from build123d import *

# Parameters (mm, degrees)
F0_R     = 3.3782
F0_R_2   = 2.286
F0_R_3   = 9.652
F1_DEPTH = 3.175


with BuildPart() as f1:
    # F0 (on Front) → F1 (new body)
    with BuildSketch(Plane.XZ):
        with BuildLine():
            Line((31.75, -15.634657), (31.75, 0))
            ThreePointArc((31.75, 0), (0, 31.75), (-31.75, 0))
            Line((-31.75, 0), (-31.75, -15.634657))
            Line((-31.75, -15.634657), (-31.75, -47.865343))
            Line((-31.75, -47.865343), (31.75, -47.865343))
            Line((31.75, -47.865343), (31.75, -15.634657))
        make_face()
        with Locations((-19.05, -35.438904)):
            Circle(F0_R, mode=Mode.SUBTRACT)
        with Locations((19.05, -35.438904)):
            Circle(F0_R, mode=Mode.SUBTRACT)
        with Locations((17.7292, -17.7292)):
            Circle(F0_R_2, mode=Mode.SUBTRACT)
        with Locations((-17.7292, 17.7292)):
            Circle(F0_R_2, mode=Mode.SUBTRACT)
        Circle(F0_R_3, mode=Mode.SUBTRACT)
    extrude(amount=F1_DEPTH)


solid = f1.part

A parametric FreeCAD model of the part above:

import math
import FreeCAD as App
import Part
import Sketcher
Q = App.Units.Quantity

doc = App.newDocument("Part")
body = doc.addObject("PartDesign::Body", "Body")

sketch1 = doc.addObject("Sketcher::SketchObject", "Sketch")
body.addObject(sketch1)
sketch1.AttachmentSupport = (doc.XZ_Plane, [""])
sketch1.MapMode = "FlatFace"
sketch1.addGeometry(Part.ArcOfCircle(Part.Circle(App.Vector(0, 0, 0), App.Vector(0, 0, 1), 31.8), math.radians(0), math.radians(180)), False)
sketch1.addGeometry(Part.LineSegment(App.Vector(-31.8, 0, 0), App.Vector(-31.8, -47.9, 0)), False)
sketch1.addGeometry(Part.LineSegment(App.Vector(-31.8, -47.9, 0), App.Vector(31.8, -47.9, 0)), False)
sketch1.addGeometry(Part.LineSegment(App.Vector(31.8, -47.9, 0), App.Vector(31.8, 0, 0)), False)
sketch1.addGeometry(Part.Circle(App.Vector(-19.1, -35.4, 0), App.Vector(0, 0, 1), 3.4), False)
sketch1.addGeometry(Part.Circle(App.Vector(19.1, -35.4, 0), App.Vector(0, 0, 1), 3.4), False)
sketch1.addGeometry(Part.Circle(App.Vector(17.7, -17.7, 0), App.Vector(0, 0, 1), 2.3), False)
sketch1.addGeometry(Part.Circle(App.Vector(0, 0, 0), App.Vector(0, 0, 1), 9.7), False)
sketch1.addGeometry(Part.Circle(App.Vector(-17.7, 17.7, 0), App.Vector(0, 0, 1), 2.3), False)
sketch1.addConstraint(Sketcher.Constraint("Tangent", 0, 2, 1, 1))
sketch1.addConstraint(Sketcher.Constraint("Coincident", 1, 2, 2, 1))
sketch1.addConstraint(Sketcher.Constraint("Coincident", 2, 2, 3, 1))
sketch1.addConstraint(Sketcher.Constraint("Tangent", 3, 2, 0, 1))
sketch1.addConstraint(Sketcher.Constraint("Vertical", 1))
sketch1.addConstraint(Sketcher.Constraint("Horizontal", 2))
sketch1.addConstraint(Sketcher.Constraint("Vertical", 3))
sketch1.addConstraint(Sketcher.Constraint("Coincident", 0, 3, -1, 1))
sketch1.addConstraint(Sketcher.Constraint("Coincident", 7, 3, -1, 1))
sketch1.addConstraint(Sketcher.Constraint("Equal", 4, 5))
sketch1.addConstraint(Sketcher.Constraint("Equal", 6, 8))
sketch1.addConstraint(Sketcher.Constraint("Symmetric", 6, 3, 8, 3, -1, 1))
sketch1.addConstraint(Sketcher.Constraint("Symmetric", 4, 3, 5, 3, -2))
sketch1.addConstraint(Sketcher.Constraint("Diameter", 6, Q("0.18 in")))
sketch1.addConstraint(Sketcher.Constraint("Diameter", 7, Q("0.76 in")))
sketch1.addConstraint(Sketcher.Constraint("Radius", 0, Q("1.25 in")))
sketch1.addConstraint(Sketcher.Constraint("Diameter", 4, Q("0.266 in")))
sketch1.addConstraint(Sketcher.Constraint("DistanceX", 1, 2, 5, 3, Q("2 in")))
sketch1.addConstraint(Sketcher.Constraint("DistanceX", -1, 1, 6, 3, Q("0.698 in")))
sketch1.addConstraint(Sketcher.Constraint("DistanceY", 6, 3, -1, 1, Q("0.698 in")))
sketch1.addConstraint(Sketcher.Constraint("DistanceY", 1, 2, 1, 1, 47.865343))
sketch1.addConstraint(Sketcher.Constraint("DistanceY", 1, 2, 4, 3, 12.426439))
pad1 = doc.addObject("PartDesign::Pad", "Pad")
body.addObject(pad1)
pad1.Profile = sketch1
pad1.Length = Q("0.125 in")

doc.recompute()
